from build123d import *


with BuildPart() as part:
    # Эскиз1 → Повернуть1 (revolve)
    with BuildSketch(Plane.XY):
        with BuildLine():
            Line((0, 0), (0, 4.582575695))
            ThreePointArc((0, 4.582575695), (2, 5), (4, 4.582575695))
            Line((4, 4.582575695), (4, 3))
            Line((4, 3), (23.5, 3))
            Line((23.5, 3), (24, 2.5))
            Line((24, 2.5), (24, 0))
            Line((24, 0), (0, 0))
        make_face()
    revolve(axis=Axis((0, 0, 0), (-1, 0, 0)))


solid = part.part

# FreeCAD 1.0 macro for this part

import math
import FreeCAD as App
import Part
import Sketcher

V = App.Vector
Q = App.Units.Quantity

doc = App.newDocument("Part")
body = doc.addObject("PartDesign::Body", "Body")

# Sketch on XY plane
sketch1 = body.newObject("Sketcher::SketchObject", "Sketch")
sketch1.AttachmentSupport = (doc.getObject("XY_Plane"), [""])
sketch1.MapMode = "FlatFace"
sketch1.addGeometry(Part.LineSegment(V(0, 4.582576, 0), V(0, 0, 0)), False)
sketch1.addGeometry(Part.LineSegment(V(0, 0, 0), V(24, 0, 0)), False)
sketch1.addGeometry(Part.LineSegment(V(24, 0, 0), V(24, 2.5, 0)), False)
sketch1.addGeometry(Part.LineSegment(V(24, 2.5, 0), V(23.5, 3, 0)), False)
sketch1.addGeometry(Part.LineSegment(V(23.5, 3, 0), V(4, 3, 0)), False)
sketch1.addGeometry(Part.LineSegment(V(4, 3, 0), V(4, 4.582576, 0)), False)
sketch1.addGeometry(Part.ArcOfCircle(Part.Circle(V(2, 0, 0), V(0, 0, 1), 5), math.radians(66.421822), math.radians(113.578178)), False)
sketch1.addConstraint(Sketcher.Constraint("Coincident", 0, 2, 1, 1))
sketch1.addConstraint(Sketcher.Constraint("Coincident", 1, 2, 2, 1))
sketch1.addConstraint(Sketcher.Constraint("Coincident", 2, 2, 3, 1))
sketch1.addConstraint(Sketcher.Constraint("Coincident", 3, 2, 4, 1))
sketch1.addConstraint(Sketcher.Constraint("Coincident", 4, 2, 5, 1))
sketch1.addConstraint(Sketcher.Constraint("Coincident", 5, 2, 6, 1))
sketch1.addConstraint(Sketcher.Constraint("Coincident", 6, 2, 0, 1))
sketch1.addConstraint(Sketcher.Constraint("Vertical", 0))
sketch1.addConstraint(Sketcher.Constraint("Horizontal", 1))
sketch1.addConstraint(Sketcher.Constraint("Vertical", 2))
sketch1.addConstraint(Sketcher.Constraint("Horizontal", 4))
sketch1.addConstraint(Sketcher.Constraint("Vertical", 5))
sketch1.addConstraint(Sketcher.Constraint("Coincident", 0, 2, -1, 1))
sketch1.addConstraint(Sketcher.Constraint("PointOnObject", 6, 3, -1))
sketch1.addConstraint(Sketcher.Constraint("Horizontal", 5, 2, 6, 2))
sketch1.addConstraint(Sketcher.Constraint("Radius", 6, 5.0))
sketch1.addConstraint(Sketcher.Constraint("DistanceX", 1, 1, 1, 2, 24.0))
sketch1.addConstraint(Sketcher.Constraint("Angle", 3, Q("135 deg")))
sketch1.addConstraint(Sketcher.Constraint("DistanceX", 4, 2, 4, 1, 19.5))
sketch1.addConstraint(Sketcher.Constraint("DistanceY", 2, 1, 2, 2, 2.5))
sketch1.addConstraint(Sketcher.Constraint("DistanceX", -1, 1, 6, 3, 2.0))
revolution = body.newObject("PartDesign::Revolution", "Revolution")
revolution.Profile = sketch1
revolution.ReferenceAxis = (sketch1, ["H_Axis"])
revolution.Angle = 360

doc.recompute()
